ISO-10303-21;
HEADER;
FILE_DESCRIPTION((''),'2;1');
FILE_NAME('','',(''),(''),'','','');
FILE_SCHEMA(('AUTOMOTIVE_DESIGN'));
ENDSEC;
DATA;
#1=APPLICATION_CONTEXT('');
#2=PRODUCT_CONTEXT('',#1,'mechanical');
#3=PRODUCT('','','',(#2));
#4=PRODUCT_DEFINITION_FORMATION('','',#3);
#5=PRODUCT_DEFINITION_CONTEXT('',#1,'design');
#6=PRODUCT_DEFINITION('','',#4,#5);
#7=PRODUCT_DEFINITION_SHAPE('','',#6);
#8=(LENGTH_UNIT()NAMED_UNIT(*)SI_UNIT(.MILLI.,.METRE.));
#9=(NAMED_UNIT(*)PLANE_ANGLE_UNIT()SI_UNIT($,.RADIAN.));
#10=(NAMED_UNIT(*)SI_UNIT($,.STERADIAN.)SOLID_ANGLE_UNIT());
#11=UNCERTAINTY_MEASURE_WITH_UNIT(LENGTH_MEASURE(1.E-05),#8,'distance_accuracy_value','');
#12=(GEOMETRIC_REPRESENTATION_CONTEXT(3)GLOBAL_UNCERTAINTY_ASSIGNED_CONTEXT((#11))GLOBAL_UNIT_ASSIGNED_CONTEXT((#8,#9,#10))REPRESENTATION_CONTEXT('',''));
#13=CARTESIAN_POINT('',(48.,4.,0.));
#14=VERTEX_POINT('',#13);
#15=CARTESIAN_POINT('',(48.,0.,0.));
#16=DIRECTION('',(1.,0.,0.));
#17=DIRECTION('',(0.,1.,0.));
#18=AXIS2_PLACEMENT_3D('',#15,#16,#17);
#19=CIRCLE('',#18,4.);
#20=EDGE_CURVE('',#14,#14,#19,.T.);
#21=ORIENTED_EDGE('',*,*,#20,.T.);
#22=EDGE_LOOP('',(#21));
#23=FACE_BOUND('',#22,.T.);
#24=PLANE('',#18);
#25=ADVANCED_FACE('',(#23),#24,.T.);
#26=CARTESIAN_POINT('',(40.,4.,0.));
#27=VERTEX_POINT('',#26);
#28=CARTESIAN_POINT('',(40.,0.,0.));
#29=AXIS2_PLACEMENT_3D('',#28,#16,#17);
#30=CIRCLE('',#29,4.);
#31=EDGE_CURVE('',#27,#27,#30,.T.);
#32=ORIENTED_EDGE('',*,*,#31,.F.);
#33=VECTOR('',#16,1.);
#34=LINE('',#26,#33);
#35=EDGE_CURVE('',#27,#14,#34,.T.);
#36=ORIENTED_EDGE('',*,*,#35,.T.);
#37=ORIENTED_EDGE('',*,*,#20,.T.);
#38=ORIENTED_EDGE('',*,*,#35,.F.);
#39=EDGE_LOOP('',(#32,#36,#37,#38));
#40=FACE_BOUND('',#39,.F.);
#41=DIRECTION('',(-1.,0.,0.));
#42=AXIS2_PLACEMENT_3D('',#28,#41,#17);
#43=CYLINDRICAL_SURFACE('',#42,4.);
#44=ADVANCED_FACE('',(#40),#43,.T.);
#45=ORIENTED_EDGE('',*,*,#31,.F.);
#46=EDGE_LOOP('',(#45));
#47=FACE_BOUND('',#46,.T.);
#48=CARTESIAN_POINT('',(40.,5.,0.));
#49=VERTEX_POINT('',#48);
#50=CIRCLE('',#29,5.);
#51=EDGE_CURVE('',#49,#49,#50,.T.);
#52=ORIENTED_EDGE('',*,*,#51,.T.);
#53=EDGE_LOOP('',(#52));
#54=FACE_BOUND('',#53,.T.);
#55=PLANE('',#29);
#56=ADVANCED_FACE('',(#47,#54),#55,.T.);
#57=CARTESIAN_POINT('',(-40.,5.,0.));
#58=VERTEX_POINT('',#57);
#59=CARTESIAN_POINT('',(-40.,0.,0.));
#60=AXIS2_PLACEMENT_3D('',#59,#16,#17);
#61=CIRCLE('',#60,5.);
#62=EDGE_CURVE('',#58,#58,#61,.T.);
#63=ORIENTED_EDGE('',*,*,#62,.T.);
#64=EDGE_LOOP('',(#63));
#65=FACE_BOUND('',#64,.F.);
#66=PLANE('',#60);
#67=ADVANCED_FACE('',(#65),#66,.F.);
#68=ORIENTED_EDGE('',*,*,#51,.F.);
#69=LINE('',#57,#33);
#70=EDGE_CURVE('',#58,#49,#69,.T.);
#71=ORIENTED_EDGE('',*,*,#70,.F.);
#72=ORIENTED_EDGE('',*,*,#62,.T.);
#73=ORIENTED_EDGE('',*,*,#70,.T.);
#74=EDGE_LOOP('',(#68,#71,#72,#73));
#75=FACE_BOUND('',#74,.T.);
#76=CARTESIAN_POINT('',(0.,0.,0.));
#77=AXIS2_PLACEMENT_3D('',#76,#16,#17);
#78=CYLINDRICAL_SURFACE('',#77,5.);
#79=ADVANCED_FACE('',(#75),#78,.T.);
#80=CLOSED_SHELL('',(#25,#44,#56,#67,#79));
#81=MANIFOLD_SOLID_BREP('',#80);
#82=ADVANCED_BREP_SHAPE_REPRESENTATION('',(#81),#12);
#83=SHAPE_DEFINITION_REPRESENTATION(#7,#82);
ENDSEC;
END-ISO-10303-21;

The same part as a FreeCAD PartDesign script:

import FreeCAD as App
import Part
import Sketcher
Q = App.Units.Quantity

doc = App.newDocument("Part")
params = doc.addObject("Spreadsheet::Sheet", "Params")
for row, (alias, value) in enumerate([
    ("sketch1_diameter", "10 mm"),
    ("pad1_length", "80 mm"),
    ("sketch2_diameter", "8 mm"),
    ("pad2_length", "8 mm"),
], start=1):
    params.set(f"A{row}", alias)
    params.set(f"B{row}", "=" + value)
    params.setAlias(f"B{row}", alias)

body = doc.addObject("PartDesign::Body", "Body")

sketch1 = body.newObject("Sketcher::SketchObject", "Sketch")
sketch1.AttachmentSupport = (doc.getObject("YZ_Plane"), [""])
sketch1.MapMode = "FlatFace"
sketch1.addGeometry(Part.Circle(App.Vector(0, 0, 0), App.Vector(0, 0, 1), 5), False)
sketch1.addConstraint([
    Sketcher.Constraint("Coincident", 0, 3, -1, 1),
    Sketcher.Constraint("Diameter", 0, Q("10 mm")),
])
sketch1.setExpression("Constraints[1]", "Params.sketch1_diameter")
pad1 = body.newObject("PartDesign::Pad", "Pad")
pad1.Profile = sketch1
pad1.setExpression("Length", "Params.pad1_length")
pad1.Midplane = True

sketch2 = body.newObject("Sketcher::SketchObject", "Sketch001")
sketch2.AttachmentSupport = (doc.getObject("YZ_Plane"), [""])
sketch2.MapMode = "FlatFace"
sketch2.AttachmentOffset = App.Placement(App.Vector(0, 0, 40), App.Rotation())
sketch2.addGeometry(Part.Circle(App.Vector(0, 0, 0), App.Vector(0, 0, 1), 4), False)
sketch2.addConstraint([
    Sketcher.Constraint("Coincident", 0, 3, -1, 1),
    Sketcher.Constraint("Diameter", 0, Q("8 mm")),
])
sketch2.setExpression("Constraints[1]", "Params.sketch2_diameter")
pad2 = body.newObject("PartDesign::Pad", "Pad001")
pad2.Profile = sketch2
pad2.setExpression("Length", "Params.pad2_length")

doc.recompute()
